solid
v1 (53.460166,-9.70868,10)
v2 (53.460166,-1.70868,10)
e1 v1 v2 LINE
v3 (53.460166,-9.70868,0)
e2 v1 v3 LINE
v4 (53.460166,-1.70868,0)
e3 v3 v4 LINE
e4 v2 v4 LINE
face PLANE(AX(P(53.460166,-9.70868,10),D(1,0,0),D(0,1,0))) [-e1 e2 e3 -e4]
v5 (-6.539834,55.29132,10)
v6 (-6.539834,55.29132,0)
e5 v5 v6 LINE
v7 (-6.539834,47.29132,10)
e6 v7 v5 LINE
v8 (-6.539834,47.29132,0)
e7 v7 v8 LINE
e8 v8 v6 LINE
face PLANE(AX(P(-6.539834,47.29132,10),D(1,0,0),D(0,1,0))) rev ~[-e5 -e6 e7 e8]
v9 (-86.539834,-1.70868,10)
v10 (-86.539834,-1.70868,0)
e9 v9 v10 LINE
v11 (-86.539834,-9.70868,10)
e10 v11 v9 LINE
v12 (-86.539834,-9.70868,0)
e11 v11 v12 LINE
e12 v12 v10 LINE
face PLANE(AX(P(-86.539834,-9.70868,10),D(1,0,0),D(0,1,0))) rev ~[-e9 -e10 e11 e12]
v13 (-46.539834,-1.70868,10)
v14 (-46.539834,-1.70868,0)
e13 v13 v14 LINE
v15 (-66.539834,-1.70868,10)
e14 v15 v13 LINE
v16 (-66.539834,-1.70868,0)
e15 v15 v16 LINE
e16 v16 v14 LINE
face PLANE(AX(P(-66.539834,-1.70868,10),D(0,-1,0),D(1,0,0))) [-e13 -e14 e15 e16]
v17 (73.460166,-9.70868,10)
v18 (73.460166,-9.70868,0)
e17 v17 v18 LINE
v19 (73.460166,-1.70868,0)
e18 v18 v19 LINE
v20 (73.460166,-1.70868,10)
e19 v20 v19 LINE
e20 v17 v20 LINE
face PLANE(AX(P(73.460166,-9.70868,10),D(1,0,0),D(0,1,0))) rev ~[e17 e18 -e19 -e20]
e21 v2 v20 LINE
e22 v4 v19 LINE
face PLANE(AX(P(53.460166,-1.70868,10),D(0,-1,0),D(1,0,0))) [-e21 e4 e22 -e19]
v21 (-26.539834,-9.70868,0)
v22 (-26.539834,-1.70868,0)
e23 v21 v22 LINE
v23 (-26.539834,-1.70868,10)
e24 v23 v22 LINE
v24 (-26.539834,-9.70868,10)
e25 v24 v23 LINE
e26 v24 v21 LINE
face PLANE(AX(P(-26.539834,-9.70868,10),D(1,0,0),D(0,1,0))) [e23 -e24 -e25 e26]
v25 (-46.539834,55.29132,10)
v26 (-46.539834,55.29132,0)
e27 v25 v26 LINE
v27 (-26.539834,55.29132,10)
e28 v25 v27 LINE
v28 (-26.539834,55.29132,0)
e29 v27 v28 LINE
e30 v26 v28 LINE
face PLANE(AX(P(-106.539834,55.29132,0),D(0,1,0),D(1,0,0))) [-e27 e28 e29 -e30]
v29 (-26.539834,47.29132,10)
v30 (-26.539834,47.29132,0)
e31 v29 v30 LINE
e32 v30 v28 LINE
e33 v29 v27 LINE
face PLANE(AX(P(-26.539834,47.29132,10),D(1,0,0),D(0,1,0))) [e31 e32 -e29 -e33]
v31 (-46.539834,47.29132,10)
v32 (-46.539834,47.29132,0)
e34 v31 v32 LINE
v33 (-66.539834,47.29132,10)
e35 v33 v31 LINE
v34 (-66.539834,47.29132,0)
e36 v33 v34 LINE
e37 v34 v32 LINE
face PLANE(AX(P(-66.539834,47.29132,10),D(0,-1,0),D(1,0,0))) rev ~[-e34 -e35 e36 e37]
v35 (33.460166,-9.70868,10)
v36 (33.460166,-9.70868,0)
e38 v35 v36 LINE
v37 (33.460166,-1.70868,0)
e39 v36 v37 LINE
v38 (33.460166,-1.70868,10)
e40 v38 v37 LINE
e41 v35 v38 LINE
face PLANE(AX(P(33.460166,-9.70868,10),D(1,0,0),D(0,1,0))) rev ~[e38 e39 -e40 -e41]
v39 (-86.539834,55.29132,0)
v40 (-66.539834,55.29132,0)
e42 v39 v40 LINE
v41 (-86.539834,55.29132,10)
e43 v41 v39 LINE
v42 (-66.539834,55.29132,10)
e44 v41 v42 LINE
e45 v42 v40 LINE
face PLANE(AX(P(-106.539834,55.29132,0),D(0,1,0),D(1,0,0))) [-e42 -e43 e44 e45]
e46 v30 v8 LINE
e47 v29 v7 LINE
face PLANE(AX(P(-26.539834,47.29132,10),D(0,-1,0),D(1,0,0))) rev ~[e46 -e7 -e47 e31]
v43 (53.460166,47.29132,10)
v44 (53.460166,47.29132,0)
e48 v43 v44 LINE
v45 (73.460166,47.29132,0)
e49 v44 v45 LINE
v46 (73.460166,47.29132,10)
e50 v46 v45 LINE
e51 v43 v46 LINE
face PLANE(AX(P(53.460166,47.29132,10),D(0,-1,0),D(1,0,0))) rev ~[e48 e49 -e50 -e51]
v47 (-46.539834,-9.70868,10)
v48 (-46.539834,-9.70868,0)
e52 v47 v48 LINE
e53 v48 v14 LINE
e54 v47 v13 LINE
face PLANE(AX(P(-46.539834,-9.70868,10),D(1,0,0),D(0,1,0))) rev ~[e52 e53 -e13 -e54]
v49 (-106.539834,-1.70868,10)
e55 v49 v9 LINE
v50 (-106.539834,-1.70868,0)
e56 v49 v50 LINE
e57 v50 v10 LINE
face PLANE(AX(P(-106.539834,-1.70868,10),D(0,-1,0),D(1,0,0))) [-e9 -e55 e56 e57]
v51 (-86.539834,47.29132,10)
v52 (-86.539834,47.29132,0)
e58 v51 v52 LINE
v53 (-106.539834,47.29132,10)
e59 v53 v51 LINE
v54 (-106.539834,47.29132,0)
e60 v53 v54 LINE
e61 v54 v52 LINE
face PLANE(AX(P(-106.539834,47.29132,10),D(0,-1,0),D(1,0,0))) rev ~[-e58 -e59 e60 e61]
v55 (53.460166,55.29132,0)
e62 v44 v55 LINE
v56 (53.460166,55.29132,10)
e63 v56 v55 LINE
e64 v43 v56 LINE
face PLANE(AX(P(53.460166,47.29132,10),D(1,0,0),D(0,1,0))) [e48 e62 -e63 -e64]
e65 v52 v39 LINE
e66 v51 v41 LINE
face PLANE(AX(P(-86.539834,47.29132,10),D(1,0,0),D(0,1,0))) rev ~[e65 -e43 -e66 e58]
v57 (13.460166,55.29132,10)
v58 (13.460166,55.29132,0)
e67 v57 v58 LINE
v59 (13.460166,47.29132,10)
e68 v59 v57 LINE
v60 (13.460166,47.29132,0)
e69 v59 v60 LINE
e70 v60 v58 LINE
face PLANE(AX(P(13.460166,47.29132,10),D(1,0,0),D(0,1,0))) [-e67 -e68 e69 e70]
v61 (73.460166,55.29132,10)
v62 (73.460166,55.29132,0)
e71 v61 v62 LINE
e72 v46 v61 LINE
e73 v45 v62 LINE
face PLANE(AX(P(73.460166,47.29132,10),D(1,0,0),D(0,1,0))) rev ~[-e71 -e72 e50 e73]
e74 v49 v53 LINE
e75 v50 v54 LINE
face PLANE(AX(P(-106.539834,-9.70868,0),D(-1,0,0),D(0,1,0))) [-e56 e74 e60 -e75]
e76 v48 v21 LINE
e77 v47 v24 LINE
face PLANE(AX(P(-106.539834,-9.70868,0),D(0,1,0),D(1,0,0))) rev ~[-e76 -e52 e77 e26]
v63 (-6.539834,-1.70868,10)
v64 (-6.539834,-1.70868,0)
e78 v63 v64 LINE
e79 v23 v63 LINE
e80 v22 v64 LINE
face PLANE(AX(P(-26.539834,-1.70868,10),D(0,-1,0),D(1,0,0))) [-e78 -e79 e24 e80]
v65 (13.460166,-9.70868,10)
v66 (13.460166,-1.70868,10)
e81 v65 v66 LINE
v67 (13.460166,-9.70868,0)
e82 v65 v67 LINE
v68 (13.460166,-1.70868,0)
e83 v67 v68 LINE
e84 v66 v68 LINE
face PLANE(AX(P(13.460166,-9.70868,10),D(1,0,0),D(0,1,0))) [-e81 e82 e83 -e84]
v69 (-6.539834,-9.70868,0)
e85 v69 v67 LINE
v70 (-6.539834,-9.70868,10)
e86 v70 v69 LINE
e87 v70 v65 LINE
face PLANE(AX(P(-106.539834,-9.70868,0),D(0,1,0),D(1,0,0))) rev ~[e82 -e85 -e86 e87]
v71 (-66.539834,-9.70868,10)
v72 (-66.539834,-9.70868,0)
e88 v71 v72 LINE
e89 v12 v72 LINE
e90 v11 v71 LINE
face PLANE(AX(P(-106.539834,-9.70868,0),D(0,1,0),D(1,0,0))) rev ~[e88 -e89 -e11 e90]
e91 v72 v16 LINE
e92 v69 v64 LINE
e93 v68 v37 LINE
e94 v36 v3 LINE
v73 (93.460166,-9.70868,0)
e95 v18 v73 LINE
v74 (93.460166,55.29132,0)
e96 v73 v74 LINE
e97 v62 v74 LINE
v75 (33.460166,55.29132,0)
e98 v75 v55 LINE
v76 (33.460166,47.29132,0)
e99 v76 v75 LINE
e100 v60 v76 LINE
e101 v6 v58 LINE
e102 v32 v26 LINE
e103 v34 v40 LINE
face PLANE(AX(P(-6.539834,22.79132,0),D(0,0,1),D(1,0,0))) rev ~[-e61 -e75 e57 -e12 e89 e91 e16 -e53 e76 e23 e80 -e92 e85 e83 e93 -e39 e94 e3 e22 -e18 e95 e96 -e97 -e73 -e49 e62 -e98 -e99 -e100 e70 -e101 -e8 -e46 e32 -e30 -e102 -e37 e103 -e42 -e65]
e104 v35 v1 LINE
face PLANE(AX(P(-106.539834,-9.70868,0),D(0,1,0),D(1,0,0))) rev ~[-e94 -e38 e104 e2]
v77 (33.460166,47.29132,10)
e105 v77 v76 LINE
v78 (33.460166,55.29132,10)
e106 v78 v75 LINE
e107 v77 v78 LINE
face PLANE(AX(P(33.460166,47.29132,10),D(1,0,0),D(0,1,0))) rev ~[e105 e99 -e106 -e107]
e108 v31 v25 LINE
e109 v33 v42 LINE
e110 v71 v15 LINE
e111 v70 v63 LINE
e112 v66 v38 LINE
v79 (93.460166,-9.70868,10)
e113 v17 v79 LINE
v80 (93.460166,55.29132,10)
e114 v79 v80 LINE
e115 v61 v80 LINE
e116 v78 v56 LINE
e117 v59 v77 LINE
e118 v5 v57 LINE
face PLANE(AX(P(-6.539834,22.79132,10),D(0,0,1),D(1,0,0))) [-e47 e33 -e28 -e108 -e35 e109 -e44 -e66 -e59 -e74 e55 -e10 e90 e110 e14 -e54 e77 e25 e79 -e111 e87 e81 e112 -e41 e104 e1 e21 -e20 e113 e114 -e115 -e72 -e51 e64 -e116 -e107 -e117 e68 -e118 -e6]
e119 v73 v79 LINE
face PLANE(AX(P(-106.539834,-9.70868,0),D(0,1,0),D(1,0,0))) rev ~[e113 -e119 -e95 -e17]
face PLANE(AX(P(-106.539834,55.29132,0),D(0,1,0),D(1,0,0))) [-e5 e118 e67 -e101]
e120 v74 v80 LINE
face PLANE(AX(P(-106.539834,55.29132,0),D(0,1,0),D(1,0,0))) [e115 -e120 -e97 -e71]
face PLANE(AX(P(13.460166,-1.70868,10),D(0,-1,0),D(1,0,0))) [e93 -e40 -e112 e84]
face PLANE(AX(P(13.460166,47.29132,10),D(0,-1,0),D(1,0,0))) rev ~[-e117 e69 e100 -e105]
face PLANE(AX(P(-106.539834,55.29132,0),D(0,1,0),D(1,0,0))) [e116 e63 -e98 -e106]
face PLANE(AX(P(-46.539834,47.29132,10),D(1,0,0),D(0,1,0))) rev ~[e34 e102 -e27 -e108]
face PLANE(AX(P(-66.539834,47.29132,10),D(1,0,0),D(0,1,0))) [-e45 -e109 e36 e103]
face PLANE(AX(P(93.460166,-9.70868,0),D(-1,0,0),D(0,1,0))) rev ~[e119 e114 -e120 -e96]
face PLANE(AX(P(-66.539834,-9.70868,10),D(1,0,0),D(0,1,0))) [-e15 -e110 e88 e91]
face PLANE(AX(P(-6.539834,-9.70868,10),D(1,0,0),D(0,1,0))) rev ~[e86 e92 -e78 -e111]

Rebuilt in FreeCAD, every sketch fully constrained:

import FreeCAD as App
import Part
import Sketcher

V = App.Vector


def add_polygon(sketch, points):
    """Adds a closed chain of lines whose ends are joined by coincident constraints."""
    first, n = sketch.GeometryCount, len(points)
    for a, b in zip(points, points[1:] + points[:1]):
        sketch.addGeometry(Part.LineSegment(App.Vector(*a, 0), App.Vector(*b, 0)), False)
    for i in range(n):
        sketch.addConstraint(Sketcher.Constraint("Coincident", first + i, 2, first + (i + 1) % n, 1))

doc = App.newDocument("Part")
body = doc.addObject("PartDesign::Body", "Body")

# Sketch on XY plane
sketch1 = body.newObject("Sketcher::SketchObject", "Sketch")
sketch1.AttachmentSupport = (doc.getObject("XY_Plane"), [""])
sketch1.MapMode = "FlatFace"
add_polygon(sketch1, [(-107, 55), (-107, -10), (93, -10), (93, 55)])  # lines 0-3
sketch1.addConstraint([
    Sketcher.Constraint("Vertical", 0),
    Sketcher.Constraint("Horizontal", 1),
    Sketcher.Constraint("Vertical", 2),
    Sketcher.Constraint("Horizontal", 3),
    Sketcher.Constraint("DistanceX", 1, 1, 1, 2, 200.0),
    Sketcher.Constraint("DistanceY", 0, 2, 0, 1, 65.0),
    Sketcher.Constraint("DistanceY", 0, 2, -1, 1, 9.70868),
    Sketcher.Constraint("DistanceX", 0, 2, -1, 1, 106.539834),
])
pad1 = body.newObject("PartDesign::Pad", "Pad")
pad1.Profile = sketch1
pad1.Length = 10

# Sketch on XY plane
sketch2 = body.newObject("Sketcher::SketchObject", "Sketch001")
sketch2.AttachmentSupport = (doc.getObject("XY_Plane"), [""])
sketch2.MapMode = "FlatFace"
sketch2.AttachmentOffset = App.Placement(V(0, 0, 10), App.Rotation())
add_polygon(sketch2, [(-67, 55), (-67, 47), (-47, 47), (-47, 55)])  # lines 0-3
add_polygon(sketch2, [(-107, 55), (-107, 47), (-87, 47), (-87, 55)])  # lines 4-7
add_polygon(sketch2, [(-107, -2), (-107, -10), (-87, -10), (-87, -2)])  # lines 8-11
add_polygon(sketch2, [(-67, -2), (-67, -10), (-47, -10), (-47, -2)])  # lines 12-15
add_polygon(sketch2, [(-27, 55), (-27, 47), (-7, 47), (-7, 55)])  # lines 16-19
add_polygon(sketch2, [(-27, -2), (-27, -10), (-7, -10), (-7, -2)])  # lines 20-23
add_polygon(sketch2, [(13, 55), (13, 47), (33, 47), (33, 55)])  # lines 24-27
add_polygon(sketch2, [(13, -2), (13, -10), (33, -10), (33, -2)])  # lines 28-31
add_polygon(sketch2, [(53, 55), (53, 47), (73, 47), (73, 55)])  # lines 32-35
add_polygon(sketch2, [(53, -2), (53, -10), (73, -10), (73, -2)])  # lines 36-39
sketch2.addConstraint([
    Sketcher.Constraint("Vertical", 0),
    Sketcher.Constraint("Horizontal", 1),
    Sketcher.Constraint("Vertical", 2),
    Sketcher.Constraint("Horizontal", 3),
    Sketcher.Constraint("Vertical", 4),
    Sketcher.Constraint("Horizontal", 5),
    Sketcher.Constraint("Vertical", 6),
    Sketcher.Constraint("Horizontal", 7),
    Sketcher.Constraint("Vertical", 8),
    Sketcher.Constraint("Horizontal", 9),
    Sketcher.Constraint("Vertical", 10),
    Sketcher.Constraint("Horizontal", 11),
    Sketcher.Constraint("Vertical", 12),
    Sketcher.Constraint("Horizontal", 13),
    Sketcher.Constraint("Vertical", 14),
    Sketcher.Constraint("Horizontal", 15),
    Sketcher.Constraint("Vertical", 16),
    Sketcher.Constraint("Horizontal", 17),
    Sketcher.Constraint("Vertical", 18),
    Sketcher.Constraint("Horizontal", 19),
    Sketcher.Constraint("Vertical", 20),
    Sketcher.Constraint("Horizontal", 21),
    Sketcher.Constraint("Vertical", 22),
    Sketcher.Constraint("Horizontal", 23),
    Sketcher.Constraint("Vertical", 24),
    Sketcher.Constraint("Horizontal", 25),
    Sketcher.Constraint("Vertical", 26),
    Sketcher.Constraint("Horizontal", 27),
    Sketcher.Constraint("Vertical", 28),
    Sketcher.Constraint("Horizontal", 29),
    Sketcher.Constraint("Vertical", 30),
    Sketcher.Constraint("Horizontal", 31),
    Sketcher.Constraint("Vertical", 32),
    Sketcher.Constraint("Horizontal", 33),
    Sketcher.Constraint("Vertical", 34),
    Sketcher.Constraint("Horizontal", 35),
    Sketcher.Constraint("Vertical", 36),
    Sketcher.Constraint("Horizontal", 37),
    Sketcher.Constraint("Vertical", 38),
    Sketcher.Constraint("Horizontal", 39),
    Sketcher.Constraint("Horizontal", 1, 2, 4, 2),
    Sketcher.Constraint("Horizontal", 3, 2, 6, 2),
    Sketcher.Constraint("Horizontal", 9, 2, 12, 2),
    Sketcher.Constraint("Horizontal", 11, 2, 14, 2),
    Sketcher.Constraint("Horizontal", 5, 2, 16, 2),
    Sketcher.Constraint("Horizontal", 7, 2, 18, 2),
    Sketcher.Constraint("Horizontal", 13, 2, 20, 2),
    Sketcher.Constraint("Horizontal", 15, 2, 22, 2),
    Sketcher.Constraint("Horizontal", 17, 2, 24, 2),
    Sketcher.Constraint("Horizontal", 19, 2, 26, 2),
    Sketcher.Constraint("Horizontal", 21, 2, 28, 2),
    Sketcher.Constraint("Horizontal", 23, 2, 30, 2),
    Sketcher.Constraint("Horizontal", 25, 2, 32, 2),
    Sketcher.Constraint("Horizontal", 27, 2, 34, 2),
    Sketcher.Constraint("Horizontal", 29, 2, 36, 2),
    Sketcher.Constraint("Horizontal", 31, 2, 38, 2),
    Sketcher.Constraint("Vertical", 7, 2, 8, 2),
    Sketcher.Constraint("Vertical", 6, 2, 9, 2),
    Sketcher.Constraint("Vertical", 3, 2, 12, 2),
    Sketcher.Constraint("Vertical", 2, 2, 13, 2),
    Sketcher.Constraint("Vertical", 19, 2, 20, 2),
    Sketcher.Constraint("Vertical", 18, 2, 21, 2),
    Sketcher.Constraint("Vertical", 27, 2, 28, 2),
    Sketcher.Constraint("Vertical", 26, 2, 29, 2),
    Sketcher.Constraint("Vertical", 35, 2, 36, 2),
    Sketcher.Constraint("Vertical", 34, 2, 37, 2),
    Sketcher.Constraint("Equal", 3, 5),
    Sketcher.Constraint("Equal", 15, 17),
    Sketcher.Constraint("Equal", 23, 25),
    Sketcher.Constraint("Equal", 31, 33),
    Sketcher.Constraint("Equal", 6, 8),
    Sketcher.Constraint("DistanceX", 1, 1, 1, 2, 20.0),
    Sketcher.Constraint("DistanceY", 0, 2, 0, 1, 8.0),
    Sketcher.Constraint("DistanceX", 4, 2, 0, 2, 40.0),
    Sketcher.Constraint("DistanceY", 8, 2, 4, 2, 57.0),
    Sketcher.Constraint("DistanceX", 1, 2, 16, 2, 20.0),
    Sketcher.Constraint("DistanceX", 17, 2, 24, 2, 20.0),
    Sketcher.Constraint("DistanceX", 25, 2, 32, 2, 20.0),
    Sketcher.Constraint("DistanceY", -1, 1, 0, 2, 47.29132),
    Sketcher.Constraint("DistanceX", 0, 2, -1, 1, 66.539834),
])
pocket1 = body.newObject("PartDesign::Pocket", "Pocket")
pocket1.Profile = sketch2
pocket1.Type = "ThroughAll"

doc.recompute()
